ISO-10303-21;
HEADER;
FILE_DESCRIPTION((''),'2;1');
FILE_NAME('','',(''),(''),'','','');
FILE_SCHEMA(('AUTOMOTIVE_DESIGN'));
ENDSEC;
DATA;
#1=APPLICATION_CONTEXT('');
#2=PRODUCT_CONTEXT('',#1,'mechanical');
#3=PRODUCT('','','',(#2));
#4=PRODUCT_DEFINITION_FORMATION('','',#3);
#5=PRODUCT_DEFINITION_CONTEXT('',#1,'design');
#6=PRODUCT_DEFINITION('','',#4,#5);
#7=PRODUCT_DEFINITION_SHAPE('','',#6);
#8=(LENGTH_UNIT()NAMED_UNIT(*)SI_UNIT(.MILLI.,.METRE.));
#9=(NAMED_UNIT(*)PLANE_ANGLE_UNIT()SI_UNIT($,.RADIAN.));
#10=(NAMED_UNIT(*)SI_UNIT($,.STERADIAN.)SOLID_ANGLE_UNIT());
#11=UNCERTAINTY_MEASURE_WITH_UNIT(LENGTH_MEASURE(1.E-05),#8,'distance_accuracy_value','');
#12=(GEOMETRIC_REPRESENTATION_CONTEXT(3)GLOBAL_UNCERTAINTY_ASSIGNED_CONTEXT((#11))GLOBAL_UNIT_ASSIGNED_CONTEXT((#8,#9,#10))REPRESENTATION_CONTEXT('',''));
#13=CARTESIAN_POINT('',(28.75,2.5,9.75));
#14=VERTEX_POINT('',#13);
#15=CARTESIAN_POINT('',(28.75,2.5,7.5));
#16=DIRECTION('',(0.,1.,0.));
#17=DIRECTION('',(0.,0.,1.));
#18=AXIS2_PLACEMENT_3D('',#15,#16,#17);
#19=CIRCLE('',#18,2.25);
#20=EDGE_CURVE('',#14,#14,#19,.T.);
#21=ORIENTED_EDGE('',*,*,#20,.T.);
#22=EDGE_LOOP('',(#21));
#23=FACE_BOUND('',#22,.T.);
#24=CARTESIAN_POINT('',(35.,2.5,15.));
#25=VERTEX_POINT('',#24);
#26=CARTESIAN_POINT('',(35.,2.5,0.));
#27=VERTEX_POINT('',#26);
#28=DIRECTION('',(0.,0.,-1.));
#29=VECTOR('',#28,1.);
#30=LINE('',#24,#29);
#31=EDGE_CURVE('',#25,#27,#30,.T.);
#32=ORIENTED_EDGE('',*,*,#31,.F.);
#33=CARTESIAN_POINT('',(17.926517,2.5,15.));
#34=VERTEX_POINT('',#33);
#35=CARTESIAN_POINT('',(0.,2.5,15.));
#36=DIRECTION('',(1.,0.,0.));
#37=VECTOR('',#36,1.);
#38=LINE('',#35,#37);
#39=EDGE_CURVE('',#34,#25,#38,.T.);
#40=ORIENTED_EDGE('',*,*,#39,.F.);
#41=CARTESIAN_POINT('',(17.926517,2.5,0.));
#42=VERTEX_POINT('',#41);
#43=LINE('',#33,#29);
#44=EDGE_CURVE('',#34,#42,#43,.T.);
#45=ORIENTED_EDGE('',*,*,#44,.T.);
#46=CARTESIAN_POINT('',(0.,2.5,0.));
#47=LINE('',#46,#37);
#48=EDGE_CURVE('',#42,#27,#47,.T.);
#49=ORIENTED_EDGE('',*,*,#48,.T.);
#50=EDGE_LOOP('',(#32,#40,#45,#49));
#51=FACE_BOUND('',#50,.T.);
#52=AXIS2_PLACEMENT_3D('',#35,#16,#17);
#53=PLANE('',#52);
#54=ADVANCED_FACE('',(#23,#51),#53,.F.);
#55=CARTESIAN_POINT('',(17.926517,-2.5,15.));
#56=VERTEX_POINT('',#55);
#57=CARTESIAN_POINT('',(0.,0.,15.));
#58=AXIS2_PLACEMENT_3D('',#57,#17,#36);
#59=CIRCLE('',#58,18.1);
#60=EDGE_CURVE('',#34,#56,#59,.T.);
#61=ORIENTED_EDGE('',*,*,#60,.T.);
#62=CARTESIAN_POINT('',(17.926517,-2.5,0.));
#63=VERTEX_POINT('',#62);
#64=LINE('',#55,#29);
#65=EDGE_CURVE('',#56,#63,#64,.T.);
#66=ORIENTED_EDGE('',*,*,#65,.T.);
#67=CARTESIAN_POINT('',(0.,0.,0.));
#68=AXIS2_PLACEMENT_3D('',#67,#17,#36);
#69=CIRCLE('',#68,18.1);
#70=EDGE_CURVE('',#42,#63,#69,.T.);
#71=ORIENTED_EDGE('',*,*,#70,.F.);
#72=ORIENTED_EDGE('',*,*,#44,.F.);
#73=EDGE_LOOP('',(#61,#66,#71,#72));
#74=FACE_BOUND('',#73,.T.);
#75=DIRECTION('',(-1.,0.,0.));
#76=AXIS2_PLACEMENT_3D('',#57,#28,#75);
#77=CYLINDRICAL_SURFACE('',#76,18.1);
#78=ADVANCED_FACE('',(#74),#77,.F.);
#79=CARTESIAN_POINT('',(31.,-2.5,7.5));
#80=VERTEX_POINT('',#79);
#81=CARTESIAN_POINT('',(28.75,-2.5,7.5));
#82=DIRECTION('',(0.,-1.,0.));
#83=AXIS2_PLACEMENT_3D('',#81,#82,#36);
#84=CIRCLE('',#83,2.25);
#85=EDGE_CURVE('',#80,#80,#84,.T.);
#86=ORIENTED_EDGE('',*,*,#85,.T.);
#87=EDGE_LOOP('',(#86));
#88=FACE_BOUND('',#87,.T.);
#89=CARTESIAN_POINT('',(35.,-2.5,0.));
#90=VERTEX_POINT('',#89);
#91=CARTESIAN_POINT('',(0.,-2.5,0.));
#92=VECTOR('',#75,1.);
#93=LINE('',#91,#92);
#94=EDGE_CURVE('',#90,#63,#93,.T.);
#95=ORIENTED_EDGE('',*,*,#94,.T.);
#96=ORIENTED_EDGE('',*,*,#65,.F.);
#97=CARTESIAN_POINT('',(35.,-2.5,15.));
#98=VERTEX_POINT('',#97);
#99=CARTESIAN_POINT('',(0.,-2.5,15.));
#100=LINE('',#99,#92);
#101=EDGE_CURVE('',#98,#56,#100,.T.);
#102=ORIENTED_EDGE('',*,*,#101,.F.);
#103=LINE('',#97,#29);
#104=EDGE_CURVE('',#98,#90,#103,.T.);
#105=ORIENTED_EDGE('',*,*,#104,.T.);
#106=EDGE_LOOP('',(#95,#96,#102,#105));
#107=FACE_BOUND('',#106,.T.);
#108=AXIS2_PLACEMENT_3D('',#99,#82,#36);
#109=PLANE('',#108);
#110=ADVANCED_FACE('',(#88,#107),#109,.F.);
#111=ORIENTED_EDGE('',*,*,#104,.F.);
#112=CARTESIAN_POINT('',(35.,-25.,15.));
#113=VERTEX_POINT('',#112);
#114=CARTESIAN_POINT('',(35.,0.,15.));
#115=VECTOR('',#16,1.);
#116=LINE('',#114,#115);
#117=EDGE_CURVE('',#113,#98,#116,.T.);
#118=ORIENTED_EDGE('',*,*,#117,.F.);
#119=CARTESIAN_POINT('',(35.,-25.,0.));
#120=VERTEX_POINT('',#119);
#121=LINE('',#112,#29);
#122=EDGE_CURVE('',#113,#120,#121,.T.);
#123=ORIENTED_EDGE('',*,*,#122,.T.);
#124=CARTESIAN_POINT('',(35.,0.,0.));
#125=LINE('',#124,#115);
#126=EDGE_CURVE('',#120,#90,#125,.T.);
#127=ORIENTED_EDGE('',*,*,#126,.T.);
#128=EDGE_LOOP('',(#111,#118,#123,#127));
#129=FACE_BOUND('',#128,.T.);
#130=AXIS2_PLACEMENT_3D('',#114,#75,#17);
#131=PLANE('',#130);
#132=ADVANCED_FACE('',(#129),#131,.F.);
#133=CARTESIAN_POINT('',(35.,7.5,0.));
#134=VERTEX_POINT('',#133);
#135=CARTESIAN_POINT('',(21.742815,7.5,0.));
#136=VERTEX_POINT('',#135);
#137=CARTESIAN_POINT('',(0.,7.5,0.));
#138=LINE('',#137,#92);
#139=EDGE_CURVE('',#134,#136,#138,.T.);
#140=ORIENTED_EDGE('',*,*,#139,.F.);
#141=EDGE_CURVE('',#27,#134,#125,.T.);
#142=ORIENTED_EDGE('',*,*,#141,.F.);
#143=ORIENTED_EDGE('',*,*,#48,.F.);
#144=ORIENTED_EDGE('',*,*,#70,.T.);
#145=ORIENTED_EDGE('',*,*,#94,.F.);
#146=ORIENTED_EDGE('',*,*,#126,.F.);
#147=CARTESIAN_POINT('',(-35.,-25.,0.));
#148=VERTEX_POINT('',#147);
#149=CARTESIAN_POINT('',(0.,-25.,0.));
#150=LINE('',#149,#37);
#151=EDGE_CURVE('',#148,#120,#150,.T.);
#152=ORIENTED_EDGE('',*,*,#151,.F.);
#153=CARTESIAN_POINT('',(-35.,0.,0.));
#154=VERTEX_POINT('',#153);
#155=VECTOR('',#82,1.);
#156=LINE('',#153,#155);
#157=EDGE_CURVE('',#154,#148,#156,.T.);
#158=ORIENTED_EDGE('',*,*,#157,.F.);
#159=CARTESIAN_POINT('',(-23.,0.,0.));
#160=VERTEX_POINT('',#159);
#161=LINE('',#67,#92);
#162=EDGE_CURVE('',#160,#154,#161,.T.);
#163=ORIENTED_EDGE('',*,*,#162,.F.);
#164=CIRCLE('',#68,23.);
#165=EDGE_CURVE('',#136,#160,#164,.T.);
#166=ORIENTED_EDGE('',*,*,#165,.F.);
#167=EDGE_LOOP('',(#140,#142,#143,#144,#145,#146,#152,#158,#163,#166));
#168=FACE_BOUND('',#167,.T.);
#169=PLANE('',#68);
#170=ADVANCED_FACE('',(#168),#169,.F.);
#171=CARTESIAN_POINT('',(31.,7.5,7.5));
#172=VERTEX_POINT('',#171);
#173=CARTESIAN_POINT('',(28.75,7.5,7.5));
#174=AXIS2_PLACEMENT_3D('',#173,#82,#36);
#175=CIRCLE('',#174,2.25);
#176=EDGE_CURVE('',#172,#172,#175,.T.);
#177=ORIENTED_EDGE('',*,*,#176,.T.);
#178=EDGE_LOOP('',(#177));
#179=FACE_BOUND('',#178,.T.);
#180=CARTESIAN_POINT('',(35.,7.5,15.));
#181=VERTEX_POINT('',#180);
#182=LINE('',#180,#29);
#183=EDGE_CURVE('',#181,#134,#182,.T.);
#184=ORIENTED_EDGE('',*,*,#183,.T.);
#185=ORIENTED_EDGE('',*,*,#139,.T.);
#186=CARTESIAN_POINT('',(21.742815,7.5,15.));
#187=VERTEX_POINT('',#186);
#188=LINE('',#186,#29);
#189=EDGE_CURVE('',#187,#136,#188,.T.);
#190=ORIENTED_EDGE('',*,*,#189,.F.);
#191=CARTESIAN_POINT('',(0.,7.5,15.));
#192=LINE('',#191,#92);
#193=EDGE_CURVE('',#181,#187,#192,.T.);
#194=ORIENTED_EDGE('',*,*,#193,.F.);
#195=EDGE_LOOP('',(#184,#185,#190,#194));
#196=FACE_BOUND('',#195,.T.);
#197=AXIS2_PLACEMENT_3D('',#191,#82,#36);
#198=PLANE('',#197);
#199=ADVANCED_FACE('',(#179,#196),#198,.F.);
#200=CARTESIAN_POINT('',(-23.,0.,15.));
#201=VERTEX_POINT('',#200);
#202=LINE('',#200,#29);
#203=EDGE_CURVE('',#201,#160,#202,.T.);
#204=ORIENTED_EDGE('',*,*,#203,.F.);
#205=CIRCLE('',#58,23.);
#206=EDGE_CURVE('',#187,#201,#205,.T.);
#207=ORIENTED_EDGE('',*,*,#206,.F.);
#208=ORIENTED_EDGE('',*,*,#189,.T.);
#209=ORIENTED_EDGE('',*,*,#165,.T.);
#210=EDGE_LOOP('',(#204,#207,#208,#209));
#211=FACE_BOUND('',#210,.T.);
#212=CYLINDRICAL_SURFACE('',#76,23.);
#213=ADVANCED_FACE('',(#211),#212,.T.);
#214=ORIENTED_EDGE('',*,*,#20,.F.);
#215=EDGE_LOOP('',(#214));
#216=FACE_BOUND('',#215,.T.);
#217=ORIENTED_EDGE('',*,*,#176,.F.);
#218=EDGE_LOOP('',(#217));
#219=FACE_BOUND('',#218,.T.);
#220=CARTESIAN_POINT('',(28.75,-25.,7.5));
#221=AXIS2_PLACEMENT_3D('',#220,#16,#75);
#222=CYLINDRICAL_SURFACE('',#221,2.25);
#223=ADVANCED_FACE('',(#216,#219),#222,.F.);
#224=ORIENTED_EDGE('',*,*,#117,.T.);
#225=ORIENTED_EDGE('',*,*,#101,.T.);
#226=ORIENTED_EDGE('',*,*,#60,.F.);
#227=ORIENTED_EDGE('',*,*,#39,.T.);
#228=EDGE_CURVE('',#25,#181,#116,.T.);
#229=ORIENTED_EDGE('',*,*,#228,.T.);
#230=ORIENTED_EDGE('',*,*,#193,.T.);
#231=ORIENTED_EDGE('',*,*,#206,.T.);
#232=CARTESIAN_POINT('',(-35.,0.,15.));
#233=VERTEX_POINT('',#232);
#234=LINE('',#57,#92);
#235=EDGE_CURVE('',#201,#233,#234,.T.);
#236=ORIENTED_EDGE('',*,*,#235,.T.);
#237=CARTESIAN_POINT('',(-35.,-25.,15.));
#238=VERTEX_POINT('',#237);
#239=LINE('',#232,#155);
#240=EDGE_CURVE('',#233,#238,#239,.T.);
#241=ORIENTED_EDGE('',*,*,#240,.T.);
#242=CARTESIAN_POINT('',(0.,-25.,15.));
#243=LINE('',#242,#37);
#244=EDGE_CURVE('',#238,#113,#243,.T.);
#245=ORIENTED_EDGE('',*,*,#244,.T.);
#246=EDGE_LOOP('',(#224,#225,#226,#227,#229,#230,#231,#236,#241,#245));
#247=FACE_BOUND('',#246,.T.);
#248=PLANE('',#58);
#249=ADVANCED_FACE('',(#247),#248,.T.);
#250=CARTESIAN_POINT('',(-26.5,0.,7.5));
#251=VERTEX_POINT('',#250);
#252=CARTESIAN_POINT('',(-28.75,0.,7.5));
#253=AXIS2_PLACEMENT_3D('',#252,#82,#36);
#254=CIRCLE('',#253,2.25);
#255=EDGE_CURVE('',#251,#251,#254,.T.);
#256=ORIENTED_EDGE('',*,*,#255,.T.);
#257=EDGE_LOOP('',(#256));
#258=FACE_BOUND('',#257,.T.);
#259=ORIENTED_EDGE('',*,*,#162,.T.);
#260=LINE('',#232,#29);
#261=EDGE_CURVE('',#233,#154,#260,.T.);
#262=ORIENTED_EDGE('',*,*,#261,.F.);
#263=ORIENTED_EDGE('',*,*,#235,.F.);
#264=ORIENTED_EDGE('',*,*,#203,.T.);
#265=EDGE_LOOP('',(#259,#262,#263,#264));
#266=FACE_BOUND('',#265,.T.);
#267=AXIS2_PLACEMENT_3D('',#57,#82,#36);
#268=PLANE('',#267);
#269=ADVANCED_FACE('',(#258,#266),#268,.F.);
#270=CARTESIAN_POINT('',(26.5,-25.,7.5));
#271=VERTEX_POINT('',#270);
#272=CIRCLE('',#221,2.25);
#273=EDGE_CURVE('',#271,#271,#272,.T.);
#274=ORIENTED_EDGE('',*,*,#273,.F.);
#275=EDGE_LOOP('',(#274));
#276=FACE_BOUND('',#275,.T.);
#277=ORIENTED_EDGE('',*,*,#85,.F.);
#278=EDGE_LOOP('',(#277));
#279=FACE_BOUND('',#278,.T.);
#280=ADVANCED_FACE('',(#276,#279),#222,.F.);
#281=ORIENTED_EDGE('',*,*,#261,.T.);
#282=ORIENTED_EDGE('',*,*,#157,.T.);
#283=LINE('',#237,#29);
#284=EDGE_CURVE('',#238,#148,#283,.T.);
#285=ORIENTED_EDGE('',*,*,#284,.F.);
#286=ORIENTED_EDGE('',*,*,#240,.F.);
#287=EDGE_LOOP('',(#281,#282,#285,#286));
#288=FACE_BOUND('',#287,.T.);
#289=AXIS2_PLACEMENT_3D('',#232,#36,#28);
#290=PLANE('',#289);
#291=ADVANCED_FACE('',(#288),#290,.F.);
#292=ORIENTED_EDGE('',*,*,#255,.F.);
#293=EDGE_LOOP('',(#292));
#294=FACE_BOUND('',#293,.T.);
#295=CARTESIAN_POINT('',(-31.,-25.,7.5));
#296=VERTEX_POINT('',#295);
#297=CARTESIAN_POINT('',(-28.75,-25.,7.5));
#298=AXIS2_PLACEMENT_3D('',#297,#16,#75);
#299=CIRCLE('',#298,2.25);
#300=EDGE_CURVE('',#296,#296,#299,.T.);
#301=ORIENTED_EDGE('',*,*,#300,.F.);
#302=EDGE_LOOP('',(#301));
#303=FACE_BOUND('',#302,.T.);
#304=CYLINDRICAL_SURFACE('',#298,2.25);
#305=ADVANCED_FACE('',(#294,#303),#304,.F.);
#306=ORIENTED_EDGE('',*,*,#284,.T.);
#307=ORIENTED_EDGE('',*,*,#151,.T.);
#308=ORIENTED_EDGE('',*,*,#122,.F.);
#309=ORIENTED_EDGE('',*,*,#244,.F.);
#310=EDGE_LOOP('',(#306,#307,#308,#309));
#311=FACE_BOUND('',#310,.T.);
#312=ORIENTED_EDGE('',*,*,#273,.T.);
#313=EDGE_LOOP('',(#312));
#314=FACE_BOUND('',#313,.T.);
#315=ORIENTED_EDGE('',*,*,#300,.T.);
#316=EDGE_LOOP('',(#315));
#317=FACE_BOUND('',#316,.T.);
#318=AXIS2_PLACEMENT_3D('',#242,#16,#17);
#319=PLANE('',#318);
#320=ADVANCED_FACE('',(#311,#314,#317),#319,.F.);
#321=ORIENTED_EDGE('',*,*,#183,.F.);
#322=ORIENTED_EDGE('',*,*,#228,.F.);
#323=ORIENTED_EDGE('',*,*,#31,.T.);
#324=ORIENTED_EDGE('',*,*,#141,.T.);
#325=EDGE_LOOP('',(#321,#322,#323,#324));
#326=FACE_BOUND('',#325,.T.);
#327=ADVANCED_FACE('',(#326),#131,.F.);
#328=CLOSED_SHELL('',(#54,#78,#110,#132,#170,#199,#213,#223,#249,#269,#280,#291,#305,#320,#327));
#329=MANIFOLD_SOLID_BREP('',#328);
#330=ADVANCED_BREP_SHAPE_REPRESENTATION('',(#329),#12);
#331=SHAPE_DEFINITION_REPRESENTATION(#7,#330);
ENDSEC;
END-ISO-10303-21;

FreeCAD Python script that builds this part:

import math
import FreeCAD as App
import Part
import Sketcher

V = App.Vector

doc = App.newDocument("Part")
body = doc.addObject("PartDesign::Body", "Body")

# Sketch on XY plane
sketch1 = doc.addObject("Sketcher::SketchObject", "Sketch")
body.addObject(sketch1)
sketch1.AttachmentSupport = (doc.XY_Plane, [""])
sketch1.MapMode = "FlatFace"
sketch1.addGeometry([
    Part.ArcOfCircle(Part.Circle(V(0, 0, 0), V(0, 0, 1), 18.1), math.radians(180), math.radians(352.060837)),  # 0
    Part.ArcOfCircle(Part.Circle(V(0, 0, 0), V(0, 0, 1), 18.1), math.radians(7.939163), math.radians(180)),  # 1
    Part.LineSegment(V(17.926517, 2.5, 0), V(35, 2.5, 0)),  # 2
    Part.LineSegment(V(35, 2.5, 0), V(35, 7.5, 0)),  # 3
    Part.LineSegment(V(35, 7.5, 0), V(21.742815, 7.5, 0)),  # 4
    Part.ArcOfCircle(Part.Circle(V(0, 0, 0), V(0, 0, 1), 23), math.radians(19.031441), math.radians(180)),  # 5
    Part.LineSegment(V(-23, 0, 0), V(-35, 0, 0)),  # 6
    Part.LineSegment(V(-35, 0, 0), V(-35, -25, 0)),  # 7
    Part.LineSegment(V(-35, -25, 0), V(35, -25, 0)),  # 8
    Part.LineSegment(V(35, -25, 0), V(35, -2.5, 0)),  # 9
    Part.LineSegment(V(35, -2.5, 0), V(17.926517, -2.5, 0)),  # 10
], False)
sketch1.addConstraint([
    Sketcher.Constraint("Tangent", 0, 1, 1, 2),
    Sketcher.Constraint("Coincident", 1, 1, 2, 1),
    Sketcher.Constraint("Coincident", 2, 2, 3, 1),
    Sketcher.Constraint("Coincident", 3, 2, 4, 1),
    Sketcher.Constraint("Coincident", 4, 2, 5, 1),
    Sketcher.Constraint("Coincident", 5, 2, 6, 1),
    Sketcher.Constraint("Coincident", 6, 2, 7, 1),
    Sketcher.Constraint("Coincident", 7, 2, 8, 1),
    Sketcher.Constraint("Coincident", 8, 2, 9, 1),
    Sketcher.Constraint("Coincident", 9, 2, 10, 1),
    Sketcher.Constraint("Coincident", 10, 2, 0, 2),
    Sketcher.Constraint("Horizontal", 2),
    Sketcher.Constraint("Vertical", 3),
    Sketcher.Constraint("Horizontal", 4),
    Sketcher.Constraint("Horizontal", 6),
    Sketcher.Constraint("Vertical", 7),
    Sketcher.Constraint("Horizontal", 8),
    Sketcher.Constraint("Vertical", 9),
    Sketcher.Constraint("Horizontal", 10),
    Sketcher.Constraint("Coincident", 0, 3, -1, 1),
    Sketcher.Constraint("Coincident", 5, 3, -1, 1),
    Sketcher.Constraint("Equal", 0, 1),
    Sketcher.Constraint("Symmetric", 2, 2, 9, 2, -1),
    Sketcher.Constraint("PointOnObject", 0, 1, -1),
    Sketcher.Constraint("PointOnObject", 5, 2, -1),
    Sketcher.Constraint("Radius", 5, 23.0),
    Sketcher.Constraint("Radius", 0, 18.1),
    Sketcher.Constraint("DistanceX", 6, 2, 6, 1, 12.0),
    Sketcher.Constraint("DistanceX", 8, 1, 8, 2, 70.0),
    Sketcher.Constraint("DistanceY", 3, 1, 3, 2, 5.0),
    Sketcher.Constraint("DistanceY", 7, 2, 7, 1, 25.0),
    Sketcher.Constraint("DistanceY", 9, 1, 9, 2, 22.5),
])
pad1 = doc.addObject("PartDesign::Pad", "Pad")
body.addObject(pad1)
pad1.Profile = sketch1
pad1.Length = 15

# Sketch on XZ plane
sketch2 = doc.addObject("Sketcher::SketchObject", "Sketch001")
body.addObject(sketch2)
sketch2.AttachmentSupport = (doc.XZ_Plane, [""])
sketch2.MapMode = "FlatFace"
sketch2.addGeometry([
    Part.Circle(V(-28.75, 7.5, 0), V(0, 0, 1), 2.25),
    Part.Circle(V(28.75, 7.5, 0), V(0, 0, 1), 2.25),
], False)
sketch2.addConstraint([
    Sketcher.Constraint("Equal", 0, 1),
    Sketcher.Constraint("Symmetric", 0, 3, 1, 3, -2),
    Sketcher.Constraint("Diameter", 0, 4.5),
    Sketcher.Constraint("DistanceY", -1, 1, 0, 3, 7.5),
    Sketcher.Constraint("DistanceX", 0, 3, 1, 3, 57.5),
])
pocket1 = doc.addObject("PartDesign::Pocket", "Pocket")
body.addObject(pocket1)
pocket1.Profile = sketch2
pocket1.Type = "ThroughAll"
pocket1.Midplane = True

doc.recompute()
